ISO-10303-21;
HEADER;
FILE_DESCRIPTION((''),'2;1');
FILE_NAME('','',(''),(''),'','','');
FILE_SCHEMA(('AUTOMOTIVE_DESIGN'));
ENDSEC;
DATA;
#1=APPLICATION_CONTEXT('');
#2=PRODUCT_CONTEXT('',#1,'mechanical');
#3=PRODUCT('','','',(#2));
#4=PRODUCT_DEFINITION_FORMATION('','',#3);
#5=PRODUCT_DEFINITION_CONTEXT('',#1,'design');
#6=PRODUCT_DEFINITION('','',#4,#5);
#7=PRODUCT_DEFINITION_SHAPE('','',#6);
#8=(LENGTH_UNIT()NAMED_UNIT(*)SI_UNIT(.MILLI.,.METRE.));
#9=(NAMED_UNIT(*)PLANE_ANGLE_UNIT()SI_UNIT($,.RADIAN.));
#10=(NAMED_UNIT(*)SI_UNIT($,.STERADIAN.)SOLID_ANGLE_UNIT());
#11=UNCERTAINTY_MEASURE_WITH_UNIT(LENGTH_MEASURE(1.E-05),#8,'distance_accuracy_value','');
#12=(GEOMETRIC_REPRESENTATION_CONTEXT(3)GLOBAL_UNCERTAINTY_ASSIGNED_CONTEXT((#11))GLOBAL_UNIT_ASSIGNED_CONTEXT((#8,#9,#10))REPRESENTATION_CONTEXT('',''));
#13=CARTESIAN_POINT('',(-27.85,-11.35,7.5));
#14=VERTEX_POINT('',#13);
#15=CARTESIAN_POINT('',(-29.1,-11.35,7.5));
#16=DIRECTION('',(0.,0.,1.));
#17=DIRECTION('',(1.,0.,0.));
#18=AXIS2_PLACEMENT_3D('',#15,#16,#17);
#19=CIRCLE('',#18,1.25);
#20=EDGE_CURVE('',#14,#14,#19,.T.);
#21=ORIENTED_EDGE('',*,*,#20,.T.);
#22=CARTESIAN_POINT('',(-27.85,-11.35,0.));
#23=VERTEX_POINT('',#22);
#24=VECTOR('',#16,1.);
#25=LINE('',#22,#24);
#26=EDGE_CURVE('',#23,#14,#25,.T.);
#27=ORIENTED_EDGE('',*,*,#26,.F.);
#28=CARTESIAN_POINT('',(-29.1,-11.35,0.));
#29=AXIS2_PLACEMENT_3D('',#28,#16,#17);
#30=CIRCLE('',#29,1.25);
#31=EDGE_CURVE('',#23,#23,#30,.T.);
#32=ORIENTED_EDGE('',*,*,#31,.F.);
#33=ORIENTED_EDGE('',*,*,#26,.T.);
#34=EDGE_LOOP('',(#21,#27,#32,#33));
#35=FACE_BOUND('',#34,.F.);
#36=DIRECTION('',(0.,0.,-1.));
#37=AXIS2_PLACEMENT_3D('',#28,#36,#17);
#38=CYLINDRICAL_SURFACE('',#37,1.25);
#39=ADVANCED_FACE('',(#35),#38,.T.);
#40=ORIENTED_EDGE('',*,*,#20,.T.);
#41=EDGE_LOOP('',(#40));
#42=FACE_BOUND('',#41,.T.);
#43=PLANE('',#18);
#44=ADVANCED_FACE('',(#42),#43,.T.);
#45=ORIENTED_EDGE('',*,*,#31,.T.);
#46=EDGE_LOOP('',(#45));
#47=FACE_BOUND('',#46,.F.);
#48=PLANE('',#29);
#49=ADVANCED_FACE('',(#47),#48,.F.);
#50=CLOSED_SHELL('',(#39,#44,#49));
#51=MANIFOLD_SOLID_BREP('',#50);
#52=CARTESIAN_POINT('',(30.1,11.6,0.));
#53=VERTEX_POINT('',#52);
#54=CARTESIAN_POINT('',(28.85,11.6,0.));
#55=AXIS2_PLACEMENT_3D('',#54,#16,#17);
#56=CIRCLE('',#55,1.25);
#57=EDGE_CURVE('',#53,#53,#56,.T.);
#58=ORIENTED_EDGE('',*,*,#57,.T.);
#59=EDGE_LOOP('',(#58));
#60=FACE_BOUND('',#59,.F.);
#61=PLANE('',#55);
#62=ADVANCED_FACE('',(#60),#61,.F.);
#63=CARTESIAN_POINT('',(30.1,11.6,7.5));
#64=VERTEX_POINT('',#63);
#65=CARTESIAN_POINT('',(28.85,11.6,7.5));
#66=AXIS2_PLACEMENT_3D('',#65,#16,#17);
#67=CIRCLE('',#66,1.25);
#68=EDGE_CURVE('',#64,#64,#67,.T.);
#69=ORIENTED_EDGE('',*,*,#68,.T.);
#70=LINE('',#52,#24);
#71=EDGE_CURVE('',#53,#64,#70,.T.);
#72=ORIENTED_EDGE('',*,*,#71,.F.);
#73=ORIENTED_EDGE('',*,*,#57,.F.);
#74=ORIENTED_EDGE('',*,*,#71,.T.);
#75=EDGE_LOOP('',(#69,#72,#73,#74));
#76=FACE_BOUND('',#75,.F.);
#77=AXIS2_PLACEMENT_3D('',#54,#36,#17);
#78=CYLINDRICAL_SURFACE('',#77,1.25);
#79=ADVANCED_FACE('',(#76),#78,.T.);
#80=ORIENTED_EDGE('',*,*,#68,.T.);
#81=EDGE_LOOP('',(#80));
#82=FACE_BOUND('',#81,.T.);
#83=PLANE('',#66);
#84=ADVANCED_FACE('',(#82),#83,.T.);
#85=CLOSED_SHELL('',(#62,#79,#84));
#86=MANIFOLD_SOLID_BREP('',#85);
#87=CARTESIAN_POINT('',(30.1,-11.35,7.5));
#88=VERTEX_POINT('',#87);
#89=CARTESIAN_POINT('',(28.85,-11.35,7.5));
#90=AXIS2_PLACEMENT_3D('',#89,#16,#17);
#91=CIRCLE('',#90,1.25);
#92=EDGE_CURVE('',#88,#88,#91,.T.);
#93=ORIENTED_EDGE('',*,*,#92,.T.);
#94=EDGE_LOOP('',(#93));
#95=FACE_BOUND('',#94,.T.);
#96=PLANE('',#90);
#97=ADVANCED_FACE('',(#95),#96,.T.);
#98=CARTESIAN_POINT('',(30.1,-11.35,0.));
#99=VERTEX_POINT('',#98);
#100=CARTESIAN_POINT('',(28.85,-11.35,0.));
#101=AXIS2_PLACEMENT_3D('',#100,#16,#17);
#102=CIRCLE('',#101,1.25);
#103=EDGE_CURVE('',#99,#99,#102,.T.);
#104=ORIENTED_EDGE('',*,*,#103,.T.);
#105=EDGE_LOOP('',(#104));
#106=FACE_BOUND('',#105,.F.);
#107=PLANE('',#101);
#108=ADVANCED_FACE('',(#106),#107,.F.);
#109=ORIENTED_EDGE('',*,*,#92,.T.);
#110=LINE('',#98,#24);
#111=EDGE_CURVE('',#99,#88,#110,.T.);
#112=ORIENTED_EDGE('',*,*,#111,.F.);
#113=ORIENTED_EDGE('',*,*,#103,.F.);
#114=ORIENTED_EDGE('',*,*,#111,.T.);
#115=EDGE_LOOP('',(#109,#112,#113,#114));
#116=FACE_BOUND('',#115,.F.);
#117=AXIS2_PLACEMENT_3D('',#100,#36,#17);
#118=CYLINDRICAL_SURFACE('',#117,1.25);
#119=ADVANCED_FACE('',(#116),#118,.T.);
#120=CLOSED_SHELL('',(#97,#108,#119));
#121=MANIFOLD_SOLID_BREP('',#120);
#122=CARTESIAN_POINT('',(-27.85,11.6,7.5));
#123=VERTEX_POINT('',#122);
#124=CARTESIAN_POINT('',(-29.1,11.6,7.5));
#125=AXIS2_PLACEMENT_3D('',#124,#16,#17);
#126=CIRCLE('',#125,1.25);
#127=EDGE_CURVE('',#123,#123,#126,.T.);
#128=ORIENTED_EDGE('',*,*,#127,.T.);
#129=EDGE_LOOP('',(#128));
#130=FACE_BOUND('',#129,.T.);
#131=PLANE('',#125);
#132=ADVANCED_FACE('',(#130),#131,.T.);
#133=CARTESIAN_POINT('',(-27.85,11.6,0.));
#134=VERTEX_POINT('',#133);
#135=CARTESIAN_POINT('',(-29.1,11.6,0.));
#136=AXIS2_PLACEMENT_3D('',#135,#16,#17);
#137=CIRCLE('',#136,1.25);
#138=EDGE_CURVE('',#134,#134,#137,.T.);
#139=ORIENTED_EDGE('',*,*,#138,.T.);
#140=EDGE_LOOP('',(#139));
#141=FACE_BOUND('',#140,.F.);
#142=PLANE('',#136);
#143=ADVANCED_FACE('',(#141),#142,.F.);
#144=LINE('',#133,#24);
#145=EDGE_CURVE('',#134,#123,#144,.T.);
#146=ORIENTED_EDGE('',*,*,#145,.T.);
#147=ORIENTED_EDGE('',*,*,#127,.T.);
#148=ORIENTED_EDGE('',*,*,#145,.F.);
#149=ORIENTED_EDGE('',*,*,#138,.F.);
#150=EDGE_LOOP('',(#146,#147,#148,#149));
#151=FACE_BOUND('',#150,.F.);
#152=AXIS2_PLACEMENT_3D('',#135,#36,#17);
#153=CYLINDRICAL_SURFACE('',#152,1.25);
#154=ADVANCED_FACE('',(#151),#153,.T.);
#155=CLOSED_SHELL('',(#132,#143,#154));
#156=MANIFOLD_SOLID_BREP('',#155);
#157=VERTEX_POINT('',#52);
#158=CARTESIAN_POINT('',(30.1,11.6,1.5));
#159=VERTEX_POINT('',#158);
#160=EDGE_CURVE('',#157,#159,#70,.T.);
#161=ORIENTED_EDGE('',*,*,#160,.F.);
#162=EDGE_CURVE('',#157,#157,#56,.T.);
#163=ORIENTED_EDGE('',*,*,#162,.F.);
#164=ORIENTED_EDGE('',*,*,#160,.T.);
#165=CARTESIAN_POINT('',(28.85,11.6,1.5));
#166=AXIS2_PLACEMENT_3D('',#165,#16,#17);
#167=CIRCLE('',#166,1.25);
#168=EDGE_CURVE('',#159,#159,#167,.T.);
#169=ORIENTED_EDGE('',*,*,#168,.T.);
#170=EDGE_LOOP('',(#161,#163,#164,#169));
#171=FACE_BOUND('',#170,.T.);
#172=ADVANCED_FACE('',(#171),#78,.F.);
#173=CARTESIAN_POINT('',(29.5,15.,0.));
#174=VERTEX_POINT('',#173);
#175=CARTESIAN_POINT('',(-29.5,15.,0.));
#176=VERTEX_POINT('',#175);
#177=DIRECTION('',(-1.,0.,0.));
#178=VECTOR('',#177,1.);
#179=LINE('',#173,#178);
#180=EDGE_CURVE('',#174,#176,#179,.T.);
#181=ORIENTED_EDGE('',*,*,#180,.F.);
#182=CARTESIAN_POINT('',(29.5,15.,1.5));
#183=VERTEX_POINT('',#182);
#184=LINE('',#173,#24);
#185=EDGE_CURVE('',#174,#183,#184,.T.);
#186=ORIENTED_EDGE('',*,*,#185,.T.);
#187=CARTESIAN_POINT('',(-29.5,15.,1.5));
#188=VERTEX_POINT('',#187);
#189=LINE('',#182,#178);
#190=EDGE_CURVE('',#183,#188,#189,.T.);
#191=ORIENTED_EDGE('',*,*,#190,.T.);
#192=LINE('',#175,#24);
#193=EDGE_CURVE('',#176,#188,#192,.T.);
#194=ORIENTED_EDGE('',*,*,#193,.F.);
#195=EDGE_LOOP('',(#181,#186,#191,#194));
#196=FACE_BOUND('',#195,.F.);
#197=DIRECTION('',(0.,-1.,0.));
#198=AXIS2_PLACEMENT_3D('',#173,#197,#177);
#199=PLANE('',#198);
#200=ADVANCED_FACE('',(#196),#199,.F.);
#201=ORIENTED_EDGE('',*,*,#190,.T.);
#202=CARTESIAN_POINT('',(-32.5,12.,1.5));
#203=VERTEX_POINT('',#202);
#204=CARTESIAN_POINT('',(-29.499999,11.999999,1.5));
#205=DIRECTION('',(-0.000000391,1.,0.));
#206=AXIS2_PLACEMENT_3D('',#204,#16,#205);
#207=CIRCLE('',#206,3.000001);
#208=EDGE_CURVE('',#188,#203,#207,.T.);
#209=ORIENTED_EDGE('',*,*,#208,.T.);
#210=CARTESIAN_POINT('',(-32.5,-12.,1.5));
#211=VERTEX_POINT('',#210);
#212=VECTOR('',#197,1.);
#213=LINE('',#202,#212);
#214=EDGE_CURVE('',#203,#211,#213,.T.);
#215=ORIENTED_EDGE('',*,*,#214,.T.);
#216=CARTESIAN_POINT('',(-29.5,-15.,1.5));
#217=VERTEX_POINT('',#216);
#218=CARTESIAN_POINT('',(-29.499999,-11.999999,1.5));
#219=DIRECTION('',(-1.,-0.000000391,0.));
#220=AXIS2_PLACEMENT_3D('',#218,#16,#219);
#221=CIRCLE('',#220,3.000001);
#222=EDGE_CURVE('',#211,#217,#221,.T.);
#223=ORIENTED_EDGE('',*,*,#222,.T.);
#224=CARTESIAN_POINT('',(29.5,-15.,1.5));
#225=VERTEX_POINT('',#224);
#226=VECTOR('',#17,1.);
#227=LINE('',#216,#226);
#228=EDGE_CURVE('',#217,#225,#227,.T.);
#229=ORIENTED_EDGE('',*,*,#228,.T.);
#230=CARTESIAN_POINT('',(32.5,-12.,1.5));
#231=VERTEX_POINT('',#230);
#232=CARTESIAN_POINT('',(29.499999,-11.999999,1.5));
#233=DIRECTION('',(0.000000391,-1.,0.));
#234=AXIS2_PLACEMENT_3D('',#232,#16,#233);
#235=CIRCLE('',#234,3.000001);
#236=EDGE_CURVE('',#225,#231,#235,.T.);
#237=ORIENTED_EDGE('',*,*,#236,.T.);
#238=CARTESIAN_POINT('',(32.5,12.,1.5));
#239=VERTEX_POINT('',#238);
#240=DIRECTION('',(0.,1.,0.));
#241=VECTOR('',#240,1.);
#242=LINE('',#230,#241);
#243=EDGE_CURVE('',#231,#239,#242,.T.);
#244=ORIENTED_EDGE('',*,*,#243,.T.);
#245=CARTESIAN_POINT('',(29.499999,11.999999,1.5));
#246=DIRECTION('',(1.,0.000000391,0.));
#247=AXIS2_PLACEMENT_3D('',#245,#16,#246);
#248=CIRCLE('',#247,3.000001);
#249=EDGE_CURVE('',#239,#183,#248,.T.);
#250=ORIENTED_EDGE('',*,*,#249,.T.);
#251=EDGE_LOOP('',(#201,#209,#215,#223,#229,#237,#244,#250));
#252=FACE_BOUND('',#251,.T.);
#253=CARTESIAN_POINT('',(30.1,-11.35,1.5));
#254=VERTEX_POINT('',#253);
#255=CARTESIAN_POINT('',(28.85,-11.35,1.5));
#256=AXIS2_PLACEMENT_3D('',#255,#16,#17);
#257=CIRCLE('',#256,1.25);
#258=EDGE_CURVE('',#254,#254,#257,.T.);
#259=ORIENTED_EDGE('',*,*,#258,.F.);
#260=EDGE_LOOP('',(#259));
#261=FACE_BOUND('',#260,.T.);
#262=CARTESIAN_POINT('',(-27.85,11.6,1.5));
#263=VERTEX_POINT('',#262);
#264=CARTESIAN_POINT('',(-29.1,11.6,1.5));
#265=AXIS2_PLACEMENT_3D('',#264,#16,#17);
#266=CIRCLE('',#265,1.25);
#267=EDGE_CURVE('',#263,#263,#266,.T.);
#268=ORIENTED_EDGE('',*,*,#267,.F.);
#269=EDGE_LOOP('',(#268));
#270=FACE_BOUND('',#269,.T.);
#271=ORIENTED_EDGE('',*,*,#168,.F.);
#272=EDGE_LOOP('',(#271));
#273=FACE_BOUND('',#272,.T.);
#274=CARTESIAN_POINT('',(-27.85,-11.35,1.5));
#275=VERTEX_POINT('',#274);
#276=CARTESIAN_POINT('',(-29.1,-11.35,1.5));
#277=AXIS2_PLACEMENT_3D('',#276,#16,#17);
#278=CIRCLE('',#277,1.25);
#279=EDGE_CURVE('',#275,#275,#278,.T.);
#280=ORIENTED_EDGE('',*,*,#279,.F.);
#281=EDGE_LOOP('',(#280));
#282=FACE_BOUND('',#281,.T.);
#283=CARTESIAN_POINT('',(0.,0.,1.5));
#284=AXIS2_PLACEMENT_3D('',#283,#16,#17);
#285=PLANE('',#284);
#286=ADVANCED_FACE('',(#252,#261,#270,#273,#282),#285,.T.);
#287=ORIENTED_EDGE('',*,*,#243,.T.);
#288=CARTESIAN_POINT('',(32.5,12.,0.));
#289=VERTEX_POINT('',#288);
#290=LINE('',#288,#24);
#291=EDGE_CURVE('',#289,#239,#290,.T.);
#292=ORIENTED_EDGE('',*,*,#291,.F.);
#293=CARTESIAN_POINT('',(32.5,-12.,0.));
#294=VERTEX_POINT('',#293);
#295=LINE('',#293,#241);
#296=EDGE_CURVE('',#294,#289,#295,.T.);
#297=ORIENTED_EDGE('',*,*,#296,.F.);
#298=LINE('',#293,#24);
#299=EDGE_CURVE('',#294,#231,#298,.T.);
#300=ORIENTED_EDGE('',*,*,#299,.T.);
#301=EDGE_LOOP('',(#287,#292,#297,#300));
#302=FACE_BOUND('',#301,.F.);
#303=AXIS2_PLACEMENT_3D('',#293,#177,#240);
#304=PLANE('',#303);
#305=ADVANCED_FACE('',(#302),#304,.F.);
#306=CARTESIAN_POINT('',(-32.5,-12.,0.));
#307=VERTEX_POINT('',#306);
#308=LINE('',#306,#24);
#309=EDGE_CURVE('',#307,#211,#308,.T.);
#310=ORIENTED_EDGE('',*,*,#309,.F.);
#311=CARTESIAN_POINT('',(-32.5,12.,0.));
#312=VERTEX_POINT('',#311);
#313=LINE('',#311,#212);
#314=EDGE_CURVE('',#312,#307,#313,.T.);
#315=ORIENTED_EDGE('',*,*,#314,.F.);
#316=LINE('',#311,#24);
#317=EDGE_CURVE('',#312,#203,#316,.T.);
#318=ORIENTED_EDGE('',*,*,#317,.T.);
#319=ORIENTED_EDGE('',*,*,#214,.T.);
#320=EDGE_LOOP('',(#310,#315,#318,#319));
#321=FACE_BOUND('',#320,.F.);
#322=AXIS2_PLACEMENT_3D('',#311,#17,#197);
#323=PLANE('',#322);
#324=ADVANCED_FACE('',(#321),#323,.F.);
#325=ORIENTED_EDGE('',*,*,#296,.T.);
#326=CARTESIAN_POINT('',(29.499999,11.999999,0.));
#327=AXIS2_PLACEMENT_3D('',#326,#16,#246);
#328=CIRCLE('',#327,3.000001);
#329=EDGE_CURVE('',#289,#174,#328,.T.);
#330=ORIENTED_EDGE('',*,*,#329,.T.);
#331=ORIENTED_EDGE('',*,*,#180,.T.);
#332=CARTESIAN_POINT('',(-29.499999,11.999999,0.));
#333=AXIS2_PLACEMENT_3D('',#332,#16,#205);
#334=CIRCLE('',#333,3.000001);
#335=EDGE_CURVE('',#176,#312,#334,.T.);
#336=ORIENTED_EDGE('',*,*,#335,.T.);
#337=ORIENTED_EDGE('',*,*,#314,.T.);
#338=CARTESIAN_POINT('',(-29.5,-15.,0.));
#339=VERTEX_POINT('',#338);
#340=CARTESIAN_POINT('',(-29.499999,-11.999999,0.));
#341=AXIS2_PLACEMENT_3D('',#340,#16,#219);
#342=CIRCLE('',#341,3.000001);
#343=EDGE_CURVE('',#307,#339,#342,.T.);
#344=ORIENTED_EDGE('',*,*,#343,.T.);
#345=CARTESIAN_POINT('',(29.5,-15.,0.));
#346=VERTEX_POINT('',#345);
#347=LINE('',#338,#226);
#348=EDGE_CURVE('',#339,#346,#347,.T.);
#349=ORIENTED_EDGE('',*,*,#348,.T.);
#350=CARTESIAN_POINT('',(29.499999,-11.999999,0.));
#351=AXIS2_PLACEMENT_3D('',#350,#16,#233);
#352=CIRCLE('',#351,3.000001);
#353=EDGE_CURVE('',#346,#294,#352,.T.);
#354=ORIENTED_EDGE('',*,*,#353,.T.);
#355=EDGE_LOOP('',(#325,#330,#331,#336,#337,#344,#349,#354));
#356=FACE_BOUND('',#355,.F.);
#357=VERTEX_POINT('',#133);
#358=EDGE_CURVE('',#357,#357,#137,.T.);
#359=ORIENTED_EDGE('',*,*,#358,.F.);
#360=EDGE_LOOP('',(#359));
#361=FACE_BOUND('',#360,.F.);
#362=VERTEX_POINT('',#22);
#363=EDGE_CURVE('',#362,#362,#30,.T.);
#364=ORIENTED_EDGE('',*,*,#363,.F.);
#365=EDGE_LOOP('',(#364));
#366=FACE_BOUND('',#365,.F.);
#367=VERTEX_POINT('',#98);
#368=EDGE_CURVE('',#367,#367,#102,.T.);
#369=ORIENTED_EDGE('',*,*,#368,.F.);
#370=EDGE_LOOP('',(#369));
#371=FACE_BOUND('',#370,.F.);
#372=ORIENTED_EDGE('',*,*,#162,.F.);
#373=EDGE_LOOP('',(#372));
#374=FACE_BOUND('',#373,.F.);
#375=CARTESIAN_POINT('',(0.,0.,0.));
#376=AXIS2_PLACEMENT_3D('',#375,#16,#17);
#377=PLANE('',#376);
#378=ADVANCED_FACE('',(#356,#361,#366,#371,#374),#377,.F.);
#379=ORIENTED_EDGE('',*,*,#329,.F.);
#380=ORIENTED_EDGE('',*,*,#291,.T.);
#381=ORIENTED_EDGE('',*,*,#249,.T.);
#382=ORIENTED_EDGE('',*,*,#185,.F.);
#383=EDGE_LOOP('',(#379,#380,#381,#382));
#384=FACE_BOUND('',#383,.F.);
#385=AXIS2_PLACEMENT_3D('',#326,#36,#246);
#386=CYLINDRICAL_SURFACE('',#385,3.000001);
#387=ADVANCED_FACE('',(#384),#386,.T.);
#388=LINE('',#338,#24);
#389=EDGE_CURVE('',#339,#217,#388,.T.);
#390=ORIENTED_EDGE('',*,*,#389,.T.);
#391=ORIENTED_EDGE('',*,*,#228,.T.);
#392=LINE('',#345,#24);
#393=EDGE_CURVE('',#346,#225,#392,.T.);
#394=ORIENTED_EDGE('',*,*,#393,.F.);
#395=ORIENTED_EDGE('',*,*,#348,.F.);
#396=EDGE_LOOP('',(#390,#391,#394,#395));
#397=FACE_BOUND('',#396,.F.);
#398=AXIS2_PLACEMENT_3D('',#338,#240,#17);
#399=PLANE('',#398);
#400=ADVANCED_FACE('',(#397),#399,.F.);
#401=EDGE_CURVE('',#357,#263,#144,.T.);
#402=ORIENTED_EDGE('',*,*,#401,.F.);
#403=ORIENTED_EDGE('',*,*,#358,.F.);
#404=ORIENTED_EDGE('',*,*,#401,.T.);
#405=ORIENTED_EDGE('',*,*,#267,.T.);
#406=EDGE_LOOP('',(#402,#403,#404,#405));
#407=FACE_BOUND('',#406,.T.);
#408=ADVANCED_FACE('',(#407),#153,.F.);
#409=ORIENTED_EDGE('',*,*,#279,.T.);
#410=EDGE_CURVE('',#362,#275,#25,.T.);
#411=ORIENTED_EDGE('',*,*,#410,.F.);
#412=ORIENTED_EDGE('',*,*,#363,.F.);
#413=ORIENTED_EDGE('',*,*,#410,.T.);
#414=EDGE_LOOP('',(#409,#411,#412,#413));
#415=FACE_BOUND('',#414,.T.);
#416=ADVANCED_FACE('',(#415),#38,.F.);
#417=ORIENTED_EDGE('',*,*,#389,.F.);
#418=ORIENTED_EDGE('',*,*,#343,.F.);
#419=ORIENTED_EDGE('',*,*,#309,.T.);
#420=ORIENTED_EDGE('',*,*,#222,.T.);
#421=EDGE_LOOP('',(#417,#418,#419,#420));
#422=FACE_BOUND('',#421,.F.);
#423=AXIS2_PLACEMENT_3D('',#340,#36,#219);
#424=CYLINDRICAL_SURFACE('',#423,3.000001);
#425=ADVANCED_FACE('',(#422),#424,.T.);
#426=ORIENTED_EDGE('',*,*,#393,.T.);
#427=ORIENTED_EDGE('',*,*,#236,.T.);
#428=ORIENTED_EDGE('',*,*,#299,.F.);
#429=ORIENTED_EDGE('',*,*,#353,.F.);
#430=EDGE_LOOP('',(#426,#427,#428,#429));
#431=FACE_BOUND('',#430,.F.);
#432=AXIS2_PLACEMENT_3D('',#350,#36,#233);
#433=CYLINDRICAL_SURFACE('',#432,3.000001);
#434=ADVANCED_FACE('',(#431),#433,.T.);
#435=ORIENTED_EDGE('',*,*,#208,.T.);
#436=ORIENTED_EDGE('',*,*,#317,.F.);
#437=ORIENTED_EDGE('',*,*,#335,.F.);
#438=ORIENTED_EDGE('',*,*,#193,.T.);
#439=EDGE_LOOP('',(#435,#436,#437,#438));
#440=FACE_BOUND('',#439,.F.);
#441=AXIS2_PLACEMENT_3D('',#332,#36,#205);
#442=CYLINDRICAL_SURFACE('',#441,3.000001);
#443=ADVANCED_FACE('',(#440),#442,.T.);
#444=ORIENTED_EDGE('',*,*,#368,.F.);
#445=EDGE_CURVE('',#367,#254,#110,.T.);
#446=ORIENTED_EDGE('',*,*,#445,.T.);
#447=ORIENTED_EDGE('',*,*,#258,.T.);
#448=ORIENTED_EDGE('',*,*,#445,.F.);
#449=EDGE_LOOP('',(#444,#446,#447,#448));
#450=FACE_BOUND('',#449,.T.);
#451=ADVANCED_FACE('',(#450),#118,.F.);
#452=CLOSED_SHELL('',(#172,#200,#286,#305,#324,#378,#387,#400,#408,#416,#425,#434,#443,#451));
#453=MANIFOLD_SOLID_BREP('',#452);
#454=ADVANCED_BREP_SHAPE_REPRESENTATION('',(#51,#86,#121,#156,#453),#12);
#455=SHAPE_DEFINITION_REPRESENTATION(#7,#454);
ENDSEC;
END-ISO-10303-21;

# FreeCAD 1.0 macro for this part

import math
import FreeCAD as App
import Part
import Sketcher

V = App.Vector
Q = App.Units.Quantity

doc = App.newDocument("Part")
body = doc.addObject("PartDesign::Body", "Body")
body.AllowCompound = True

sketch1 = doc.addObject("Sketcher::SketchObject", "Sketch")
body.addObject(sketch1)
sketch1.AttachmentSupport = (doc.XY_Plane, [""])
sketch1.MapMode = "FlatFace"
sketch1.addGeometry([
    Part.Circle(V(-29.1, -11.35, 0), V(0, 0, 1), 1.25),
    Part.Circle(V(-29.1, 11.6, 0), V(0, 0, 1), 1.25),
    Part.Circle(V(28.85, 11.6, 0), V(0, 0, 1), 1.25),
    Part.Circle(V(28.85, -11.35, 0), V(0, 0, 1), 1.25),
], False)
sketch1.addConstraint([
    Sketcher.Constraint("Equal", 0, 1),
    Sketcher.Constraint("Equal", 1, 2),
    Sketcher.Constraint("Equal", 2, 3),
    Sketcher.Constraint("Horizontal", 1, 3, 2, 3),
    Sketcher.Constraint("Horizontal", 0, 3, 3, 3),
    Sketcher.Constraint("Vertical", 0, 3, 1, 3),
    Sketcher.Constraint("Vertical", 2, 3, 3, 3),
    Sketcher.Constraint("Diameter", 0, Q("2.5 mm")),
    Sketcher.Constraint("DistanceX", 0, 3, -1, 1, Q("29.1 mm")),
    Sketcher.Constraint("DistanceY", -1, 1, 1, 3, Q("11.6 mm")),
    Sketcher.Constraint("DistanceY", 0, 3, -1, 1, Q("11.35 mm")),
    Sketcher.Constraint("DistanceX", -1, 1, 2, 3, Q("28.85 mm")),
])
pad1 = doc.addObject("PartDesign::Pad", "Pad")
body.addObject(pad1)
pad1.Profile = sketch1
pad1.Length = 7.5
body2 = doc.addObject("PartDesign::Body", "Body001")

sketch2 = doc.addObject("Sketcher::SketchObject", "Sketch001")
body2.addObject(sketch2)
sketch2.AttachmentSupport = (doc.getObject("XY_Plane001"), [""])
sketch2.MapMode = "FlatFace"
sketch2.addGeometry([
    Part.LineSegment(V(-29.5, -15, 0), V(29.5, -15, 0)),
    Part.ArcOfCircle(Part.Circle(V(29.499999, -11.999999, 0), V(0, 0, 1), 3.000001), math.radians(-89.999978), math.radians(-0.000022)),
    Part.LineSegment(V(32.5, -12, 0), V(32.5, 12, 0)),
    Part.ArcOfCircle(Part.Circle(V(29.499999, 11.999999, 0), V(0, 0, 1), 3.000001), math.radians(0.000022), math.radians(89.999978)),
    Part.LineSegment(V(29.5, 15, 0), V(-29.5, 15, 0)),
    Part.ArcOfCircle(Part.Circle(V(-29.499999, 11.999999, 0), V(0, 0, 1), 3.000001), math.radians(90.000022), math.radians(179.999978)),
    Part.LineSegment(V(-32.5, 12, 0), V(-32.5, -12, 0)),
    Part.ArcOfCircle(Part.Circle(V(-29.499999, -11.999999, 0), V(0, 0, 1), 3.000001), math.radians(-179.999978), math.radians(-90.000022)),
    Part.Circle(V(-29.1, -11.35, 0), V(0, 0, 1), 1.25),
    Part.Circle(V(28.85, -11.35, 0), V(0, 0, 1), 1.25),
    Part.Circle(V(-29.1, 11.6, 0), V(0, 0, 1), 1.25),
    Part.Circle(V(28.85, 11.6, 0), V(0, 0, 1), 1.25),
], False)
sketch2.addConstraint([
    Sketcher.Constraint("Tangent", 0, 2, 1, 1),
    Sketcher.Constraint("Tangent", 1, 2, 2, 1),
    Sketcher.Constraint("Tangent", 2, 2, 3, 1),
    Sketcher.Constraint("Tangent", 3, 2, 4, 1),
    Sketcher.Constraint("Tangent", 4, 2, 5, 1),
    Sketcher.Constraint("Tangent", 5, 2, 6, 1),
    Sketcher.Constraint("Tangent", 6, 2, 7, 1),
    Sketcher.Constraint("Tangent", 7, 2, 0, 1),
    Sketcher.Constraint("Horizontal", 0),
    Sketcher.Constraint("Vertical", 2),
    Sketcher.Constraint("Horizontal", 4),
    Sketcher.Constraint("Vertical", 6),
    Sketcher.Constraint("Equal", 1, 3),
    Sketcher.Constraint("Equal", 3, 5),
    Sketcher.Constraint("Equal", 5, 7),
    Sketcher.Constraint("Equal", 8, 9),
    Sketcher.Constraint("Equal", 9, 10),
    Sketcher.Constraint("Equal", 10, 11),
    Sketcher.Constraint("Symmetric", 1, 3, 5, 3, -1, 1),
    Sketcher.Constraint("Horizontal", 8, 3, 9, 3),
    Sketcher.Constraint("Horizontal", 10, 3, 11, 3),
    Sketcher.Constraint("Vertical", 8, 3, 10, 3),
    Sketcher.Constraint("Vertical", 9, 3, 11, 3),
    Sketcher.Constraint("Radius", 1, Q("3.000001 mm")),
    Sketcher.Constraint("Diameter", 8, Q("2.5 mm")),
    Sketcher.Constraint("DistanceX", 0, 1, 0, 2, Q("59 mm")),
    Sketcher.Constraint("DistanceY", 2, 1, 2, 2, Q("24 mm")),
    Sketcher.Constraint("DistanceX", 8, 3, -1, 1, Q("29.1 mm")),
    Sketcher.Constraint("DistanceY", -1, 1, 10, 3, Q("11.6 mm")),
    Sketcher.Constraint("DistanceY", 8, 3, -1, 1, Q("11.35 mm")),
    Sketcher.Constraint("DistanceX", -1, 1, 9, 3, Q("28.85 mm")),
])
pad2 = doc.addObject("PartDesign::Pad", "Pad001")
body2.addObject(pad2)
pad2.Profile = sketch2
pad2.Length = 1.5

doc.recompute()
